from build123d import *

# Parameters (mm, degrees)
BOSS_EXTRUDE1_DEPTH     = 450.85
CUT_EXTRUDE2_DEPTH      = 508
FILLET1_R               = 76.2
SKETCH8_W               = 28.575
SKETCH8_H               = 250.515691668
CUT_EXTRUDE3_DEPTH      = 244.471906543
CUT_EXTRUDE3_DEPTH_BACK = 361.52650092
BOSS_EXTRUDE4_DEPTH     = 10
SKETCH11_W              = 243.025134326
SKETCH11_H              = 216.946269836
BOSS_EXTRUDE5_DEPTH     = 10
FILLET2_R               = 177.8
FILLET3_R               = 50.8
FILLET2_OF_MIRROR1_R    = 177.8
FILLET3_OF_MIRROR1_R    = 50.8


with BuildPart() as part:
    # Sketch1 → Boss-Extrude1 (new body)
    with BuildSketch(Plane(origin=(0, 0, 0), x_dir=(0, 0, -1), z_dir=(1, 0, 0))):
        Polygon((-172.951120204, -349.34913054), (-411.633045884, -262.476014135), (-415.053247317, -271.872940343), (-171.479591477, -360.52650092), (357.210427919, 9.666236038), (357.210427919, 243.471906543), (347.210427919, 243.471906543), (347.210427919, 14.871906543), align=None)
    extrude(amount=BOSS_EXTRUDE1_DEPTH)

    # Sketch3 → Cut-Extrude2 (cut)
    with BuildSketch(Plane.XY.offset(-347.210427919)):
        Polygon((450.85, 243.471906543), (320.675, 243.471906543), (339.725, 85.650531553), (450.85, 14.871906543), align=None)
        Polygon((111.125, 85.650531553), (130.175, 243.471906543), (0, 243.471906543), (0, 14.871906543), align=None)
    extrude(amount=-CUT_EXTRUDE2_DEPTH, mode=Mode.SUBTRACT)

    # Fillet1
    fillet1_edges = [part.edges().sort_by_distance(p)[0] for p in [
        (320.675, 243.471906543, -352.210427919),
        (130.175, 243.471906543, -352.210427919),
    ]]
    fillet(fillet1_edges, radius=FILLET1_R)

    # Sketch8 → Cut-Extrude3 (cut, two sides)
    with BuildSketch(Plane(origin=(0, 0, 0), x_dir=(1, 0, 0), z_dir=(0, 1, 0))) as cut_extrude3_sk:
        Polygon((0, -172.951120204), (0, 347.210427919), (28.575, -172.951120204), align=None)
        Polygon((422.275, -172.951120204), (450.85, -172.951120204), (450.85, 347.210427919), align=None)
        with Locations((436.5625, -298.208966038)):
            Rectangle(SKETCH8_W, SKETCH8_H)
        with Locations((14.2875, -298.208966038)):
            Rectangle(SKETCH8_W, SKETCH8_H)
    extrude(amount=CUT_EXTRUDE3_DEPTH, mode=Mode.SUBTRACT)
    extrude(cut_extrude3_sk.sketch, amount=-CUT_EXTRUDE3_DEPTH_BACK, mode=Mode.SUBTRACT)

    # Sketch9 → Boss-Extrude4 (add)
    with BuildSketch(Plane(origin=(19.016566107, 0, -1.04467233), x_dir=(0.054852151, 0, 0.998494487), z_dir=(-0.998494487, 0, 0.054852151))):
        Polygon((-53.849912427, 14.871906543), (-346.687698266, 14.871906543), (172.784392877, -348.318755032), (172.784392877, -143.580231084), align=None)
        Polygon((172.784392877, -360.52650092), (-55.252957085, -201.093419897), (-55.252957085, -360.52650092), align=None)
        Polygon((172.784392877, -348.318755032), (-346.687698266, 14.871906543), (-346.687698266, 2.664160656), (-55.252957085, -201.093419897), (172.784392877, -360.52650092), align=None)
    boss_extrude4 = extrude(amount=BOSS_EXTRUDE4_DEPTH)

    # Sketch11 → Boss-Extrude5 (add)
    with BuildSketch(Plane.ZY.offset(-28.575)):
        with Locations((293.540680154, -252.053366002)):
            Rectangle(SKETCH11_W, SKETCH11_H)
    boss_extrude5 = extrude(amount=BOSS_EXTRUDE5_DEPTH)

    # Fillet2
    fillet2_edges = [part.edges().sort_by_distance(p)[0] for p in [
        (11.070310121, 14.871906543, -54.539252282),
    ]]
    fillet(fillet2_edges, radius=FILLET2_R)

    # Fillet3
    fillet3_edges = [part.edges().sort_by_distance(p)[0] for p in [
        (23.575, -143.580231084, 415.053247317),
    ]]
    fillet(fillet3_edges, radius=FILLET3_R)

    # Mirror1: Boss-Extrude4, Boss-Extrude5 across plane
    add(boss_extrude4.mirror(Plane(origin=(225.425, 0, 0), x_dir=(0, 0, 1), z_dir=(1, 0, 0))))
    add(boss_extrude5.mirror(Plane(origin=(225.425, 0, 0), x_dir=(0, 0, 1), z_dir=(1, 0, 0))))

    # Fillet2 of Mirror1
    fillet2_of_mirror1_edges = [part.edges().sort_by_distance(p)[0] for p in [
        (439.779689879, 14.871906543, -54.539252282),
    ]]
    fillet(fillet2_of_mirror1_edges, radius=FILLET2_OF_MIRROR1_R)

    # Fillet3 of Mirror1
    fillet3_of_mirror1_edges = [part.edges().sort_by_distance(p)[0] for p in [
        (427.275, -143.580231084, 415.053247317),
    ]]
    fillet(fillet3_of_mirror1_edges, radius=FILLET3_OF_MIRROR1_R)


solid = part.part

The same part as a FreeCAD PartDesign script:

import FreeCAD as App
import Part
import Sketcher
Q = App.Units.Quantity


def edges_at(feature, points):
    """Names of the edges that pass closest to the given points."""
    edges = feature.Shape.Edges
    near = lambda p: min(range(len(edges)), key=lambda i: edges[i].distToShape(Part.Vertex(*p))[0])
    return sorted({f"Edge{near(p) + 1}" for p in points})

doc = App.newDocument("Part")
body = doc.addObject("PartDesign::Body", "Body")

# Sketch on YZ plane
sketch1 = body.newObject("Sketcher::SketchObject", "Sketch")
sketch1.AttachmentSupport = (doc.getObject("YZ_Plane"), [""])
sketch1.MapMode = "FlatFace"
sketch1.addGeometry([
    Part.LineSegment(App.Vector(-349, 173, 0), App.Vector(-262, 412, 0)),  # 0
    Part.LineSegment(App.Vector(-262, 412, 0), App.Vector(-272, 415, 0)),  # 1
    Part.LineSegment(App.Vector(-272, 415, 0), App.Vector(-361, 171, 0)),  # 2
    Part.LineSegment(App.Vector(-361, 171, 0), App.Vector(10, -357, 0)),  # 3
    Part.LineSegment(App.Vector(10, -357, 0), App.Vector(243, -357, 0)),  # 4
    Part.LineSegment(App.Vector(243, -357, 0), App.Vector(243, -347, 0)),  # 5
    Part.LineSegment(App.Vector(243, -347, 0), App.Vector(15, -347, 0)),  # 6
    Part.LineSegment(App.Vector(15, -347, 0), App.Vector(-349, 173, 0)),  # 7
], False)
sketch1.addConstraint([
    Sketcher.Constraint("Coincident", 0, 2, 1, 1),
    Sketcher.Constraint("Coincident", 1, 2, 2, 1),
    Sketcher.Constraint("Coincident", 2, 2, 3, 1),
    Sketcher.Constraint("Coincident", 3, 2, 4, 1),
    Sketcher.Constraint("Coincident", 4, 2, 5, 1),
    Sketcher.Constraint("Coincident", 5, 2, 6, 1),
    Sketcher.Constraint("Coincident", 6, 2, 7, 1),
    Sketcher.Constraint("Coincident", 7, 2, 0, 1),
    Sketcher.Constraint("Horizontal", 4),
    Sketcher.Constraint("Vertical", 5),
    Sketcher.Constraint("Horizontal", 6),
    Sketcher.Constraint("Perpendicular", 0, 1),
    Sketcher.Constraint("Perpendicular", 1, 2),
    Sketcher.Constraint("Parallel", 3, 7),
    Sketcher.Constraint("DistanceX", 6, 2, 6, 1, Q("9 in")),
    Sketcher.Constraint("Distance", 0, Q("10 in")),
    Sketcher.Constraint("Distance", 7, Q("25 in")),
    Sketcher.Constraint("Angle", 0, Q("70 deg")),
    Sketcher.Constraint("Angle", 3, Q("-55 deg")),
    Sketcher.Constraint("DistanceY", 5, 1, 5, 2, Q("10 mm")),
    Sketcher.Constraint("Distance", 1, Q("10 mm")),
    Sketcher.Constraint("DistanceX", 4, 1, 4, 2, Q("233.805671 mm")),
    Sketcher.Constraint("DistanceX", 2, 2, -1, 1, Q("360.526501 mm")),
    Sketcher.Constraint("DistanceY", -1, 1, 2, 2, Q("171.479591 mm")),
])
pad1 = body.newObject("PartDesign::Pad", "Pad")
pad1.Profile = sketch1
pad1.Length = Q("17.75 in")

# Sketch on XY plane
sketch2 = body.newObject("Sketcher::SketchObject", "Sketch001")
sketch2.AttachmentSupport = (doc.getObject("XY_Plane"), [""])
sketch2.MapMode = "FlatFace"
sketch2.AttachmentOffset = App.Placement(App.Vector(0, 0, -347.210428), App.Rotation())
sketch2.addGeometry([
    Part.LineSegment(App.Vector(451, 243, 0), App.Vector(321, 243, 0)),  # 0
    Part.LineSegment(App.Vector(321, 243, 0), App.Vector(340, 86, 0)),  # 1
    Part.LineSegment(App.Vector(340, 86, 0), App.Vector(451, 15, 0)),  # 2
    Part.LineSegment(App.Vector(451, 15, 0), App.Vector(451, 243, 0)),  # 3
    Part.LineSegment(App.Vector(111, 86, 0), App.Vector(130, 243, 0)),  # 4
    Part.LineSegment(App.Vector(130, 243, 0), App.Vector(0, 243, 0)),  # 5
    Part.LineSegment(App.Vector(0, 243, 0), App.Vector(0, 15, 0)),  # 6
    Part.LineSegment(App.Vector(0, 15, 0), App.Vector(111, 86, 0)),  # 7
], False)
sketch2.addConstraint([
    Sketcher.Constraint("Coincident", 0, 2, 1, 1),
    Sketcher.Constraint("Coincident", 1, 2, 2, 1),
    Sketcher.Constraint("Coincident", 2, 2, 3, 1),
    Sketcher.Constraint("Coincident", 3, 2, 0, 1),
    Sketcher.Constraint("Coincident", 4, 2, 5, 1),
    Sketcher.Constraint("Coincident", 5, 2, 6, 1),
    Sketcher.Constraint("Coincident", 6, 2, 7, 1),
    Sketcher.Constraint("Coincident", 7, 2, 4, 1),
    Sketcher.Constraint("Horizontal", 0),
    Sketcher.Constraint("Vertical", 3),
    Sketcher.Constraint("Horizontal", 5),
    Sketcher.Constraint("Vertical", 6),
    Sketcher.Constraint("PointOnObject", 5, 2, -2),
    Sketcher.Constraint("Horizontal", 3, 2, 4, 2),
    Sketcher.Constraint("Horizontal", 2, 2, 6, 2),
    Sketcher.Constraint("Horizontal", 1, 2, 7, 2),
    Sketcher.Constraint("Equal", 0, 5),
    Sketcher.Constraint("Equal", 1, 4),
    Sketcher.Constraint("DistanceY", 3, 1, 3, 2, Q("9 in")),
    Sketcher.Constraint("DistanceX", 7, 2, 1, 2, Q("9 in")),
    Sketcher.Constraint("DistanceX", 4, 2, 0, 2, Q("7.5 in")),
    Sketcher.Constraint("DistanceX", 0, 2, 0, 1, Q("5.125 in")),
    Sketcher.Constraint("DistanceY", -1, 1, 1, 2, Q("85.650532 mm")),
    Sketcher.Constraint("Distance", 1, Q("158.966943 mm")),
])
pocket1 = body.newObject("PartDesign::Pocket", "Pocket")
pocket1.Profile = sketch2
pocket1.Length = Q("20 in")
doc.recompute()

fillet = body.newObject("PartDesign::Fillet", "Fillet")
fillet.Base = (pocket1, edges_at(pocket1, [(320.675, 243.472, -352.21), (130.175, 243.472, -352.21)]))
fillet.Radius = Q("3 in")

# Sketch on XZ plane
sketch3 = body.newObject("Sketcher::SketchObject", "Sketch002")
sketch3.AttachmentSupport = (doc.getObject("XZ_Plane"), [""])
sketch3.MapMode = "FlatFace"
sketch3.addGeometry([
    Part.LineSegment(App.Vector(0, -347, 0), App.Vector(0, 423, 0)),  # 0
    Part.LineSegment(App.Vector(0, 423, 0), App.Vector(29, 423, 0)),  # 1
    Part.LineSegment(App.Vector(29, 423, 0), App.Vector(29, 173, 0)),  # 2
    Part.LineSegment(App.Vector(29, 173, 0), App.Vector(0, -347, 0)),  # 3
    Part.LineSegment(App.Vector(451, -347, 0), App.Vector(422, 173, 0)),  # 4
    Part.LineSegment(App.Vector(422, 173, 0), App.Vector(422, 423, 0)),  # 5
    Part.LineSegment(App.Vector(422, 423, 0), App.Vector(451, 423, 0)),  # 6
    Part.LineSegment(App.Vector(451, 423, 0), App.Vector(451, -347, 0)),  # 7
], False)
sketch3.addConstraint([
    Sketcher.Constraint("Coincident", 0, 2, 1, 1),
    Sketcher.Constraint("Coincident", 1, 2, 2, 1),
    Sketcher.Constraint("Coincident", 2, 2, 3, 1),
    Sketcher.Constraint("Coincident", 3, 2, 0, 1),
    Sketcher.Constraint("Coincident", 4, 2, 5, 1),
    Sketcher.Constraint("Coincident", 5, 2, 6, 1),
    Sketcher.Constraint("Coincident", 6, 2, 7, 1),
    Sketcher.Constraint("Coincident", 7, 2, 4, 1),
    Sketcher.Constraint("Vertical", 0),
    Sketcher.Constraint("Horizontal", 1),
    Sketcher.Constraint("Vertical", 2),
    Sketcher.Constraint("Vertical", 5),
    Sketcher.Constraint("Horizontal", 6),
    Sketcher.Constraint("Vertical", 7),
    Sketcher.Constraint("PointOnObject", 0, 2, -2),
    Sketcher.Constraint("Horizontal", 2, 2, 4, 2),
    Sketcher.Constraint("Horizontal", 1, 2, 5, 2),
    Sketcher.Constraint("Horizontal", 3, 2, 7, 2),
    Sketcher.Constraint("Equal", 1, 6),
    Sketcher.Constraint("DistanceX", 2, 2, 4, 2, Q("15.5 in")),
    Sketcher.Constraint("DistanceX", 1, 1, 1, 2, Q("1.125 in")),
    Sketcher.Constraint("DistanceY", 0, 1, 0, 2, Q("770.67724 mm")),
    Sketcher.Constraint("DistanceY", 2, 2, 2, 1, Q("250.515692 mm")),
    Sketcher.Constraint("DistanceY", -1, 1, 0, 2, Q("423.466812 mm")),
])
pocket2 = body.newObject("PartDesign::Pocket", "Pocket001")
pocket2.Profile = sketch3
pocket2.Type = "ThroughAll"
pocket2.Midplane = True

# Sketch on an angled plane
sketch4 = body.newObject("Sketcher::SketchObject", "Sketch003")
sketch4.Placement = App.Placement(App.Vector(19.016566, 0, -1.044672), App.Rotation(App.Vector(0.054852151, 0, 0.998494487), App.Vector(0, 0.999999999, 0), App.Vector(-0.998494487, 0, 0.054852151), "ZXY"))
sketch4.addGeometry([
    Part.LineSegment(App.Vector(-54, 15, 0), App.Vector(-347, 15, 0)),  # 0
    Part.LineSegment(App.Vector(-347, 15, 0), App.Vector(-347, 3, 0)),  # 1
    Part.LineSegment(App.Vector(-347, 3, 0), App.Vector(-55, -201, 0)),  # 2
    Part.LineSegment(App.Vector(-55, -201, 0), App.Vector(-55, -361, 0)),  # 3
    Part.LineSegment(App.Vector(-55, -361, 0), App.Vector(173, -361, 0)),  # 4
    Part.LineSegment(App.Vector(173, -361, 0), App.Vector(173, -144, 0)),  # 5
    Part.LineSegment(App.Vector(173, -144, 0), App.Vector(-54, 15, 0)),  # 6
], False)
sketch4.addConstraint([
    Sketcher.Constraint("Coincident", 0, 2, 1, 1),
    Sketcher.Constraint("Coincident", 1, 2, 2, 1),
    Sketcher.Constraint("Coincident", 2, 2, 3, 1),
    Sketcher.Constraint("Coincident", 3, 2, 4, 1),
    Sketcher.Constraint("Coincident", 4, 2, 5, 1),
    Sketcher.Constraint("Coincident", 5, 2, 6, 1),
    Sketcher.Constraint("Coincident", 6, 2, 0, 1),
    Sketcher.Constraint("Horizontal", 0),
    Sketcher.Constraint("Vertical", 1),
    Sketcher.Constraint("Vertical", 3),
    Sketcher.Constraint("Horizontal", 4),
    Sketcher.Constraint("Vertical", 5),
    Sketcher.Constraint("Parallel", 2, 6),
    Sketcher.Constraint("Distance", 2, Q("14 in")),
    Sketcher.Constraint("DistanceX", 4, 1, 4, 2, Q("228.03735 mm")),
    Sketcher.Constraint("DistanceY", 3, 2, 3, 1, Q("159.433081 mm")),
    Sketcher.Constraint("DistanceY", 5, 1, 5, 2, Q("216.946269 mm")),
    Sketcher.Constraint("DistanceY", 3, 2, -1, 1, Q("360.5265 mm")),
    Sketcher.Constraint("DistanceX", 0, 2, 0, 1, Q("292.837786 mm")),
    Sketcher.Constraint("DistanceY", 1, 2, 1, 1, Q("12.207746 mm")),
    Sketcher.Constraint("DistanceX", 0, 2, -1, 1, Q("346.687698 mm")),
])
pad2 = body.newObject("PartDesign::Pad", "Pad001")
pad2.Profile = sketch4
pad2.Length = 10

# Sketch on YZ plane
sketch5 = body.newObject("Sketcher::SketchObject", "Sketch004")
sketch5.AttachmentSupport = (doc.getObject("YZ_Plane"), [""])
sketch5.MapMode = "FlatFace"
sketch5.AttachmentOffset = App.Placement(App.Vector(0, 0, 1.125 * 25.4), App.Rotation())
sketch5.addGeometry([
    Part.LineSegment(App.Vector(-144, 172, 0), App.Vector(-361, 172, 0)),
    Part.LineSegment(App.Vector(-361, 172, 0), App.Vector(-361, 415, 0)),
    Part.LineSegment(App.Vector(-361, 415, 0), App.Vector(-144, 415, 0)),
    Part.LineSegment(App.Vector(-144, 415, 0), App.Vector(-144, 172, 0)),
], False)
sketch5.addConstraint([
    Sketcher.Constraint("Coincident", 0, 2, 1, 1),
    Sketcher.Constraint("Coincident", 1, 2, 2, 1),
    Sketcher.Constraint("Coincident", 2, 2, 3, 1),
    Sketcher.Constraint("Coincident", 3, 2, 0, 1),
    Sketcher.Constraint("Horizontal", 0),
    Sketcher.Constraint("Vertical", 1),
    Sketcher.Constraint("Horizontal", 2),
    Sketcher.Constraint("Vertical", 3),
    Sketcher.Constraint("DistanceX", 0, 2, 0, 1, Q("216.94627 mm")),
    Sketcher.Constraint("DistanceX", 0, 2, -1, 1, Q("360.526501 mm")),
    Sketcher.Constraint("DistanceY", 1, 1, 1, 2, Q("243.025134 mm")),
    Sketcher.Constraint("DistanceY", -1, 1, 0, 2, Q("172.028113 mm")),
])
pad3 = body.newObject("PartDesign::Pad", "Pad002")
pad3.Profile = sketch5
pad3.Length = 10
pad3.Reversed = True
doc.recompute()

fillet2 = body.newObject("PartDesign::Fillet", "Fillet001")
fillet2.Base = (pad3, edges_at(pad3, [(11.07, 14.872, -54.539)]))
fillet2.Radius = Q("7 in")
doc.recompute()

fillet3 = body.newObject("PartDesign::Fillet", "Fillet002")
fillet3.Base = (fillet2, edges_at(fillet2, [(23.575, -143.58, 415.053)]))
fillet3.Radius = Q("2 in")
doc.recompute()

datumplane = body.newObject("PartDesign::Plane", "DatumPlane")
datumplane.AttachmentSupport = (doc.getObject("YZ_Plane"), [""])
datumplane.MapMode = "FlatFace"
datumplane.AttachmentOffset = App.Placement(App.Vector(0, 0, 8.875 * 25.4), App.Rotation())
mirrored = body.newObject("PartDesign::Mirrored", "Mirrored")
mirrored.Originals = [pad2, pad3]
mirrored.MirrorPlane = (datumplane, [""])
body.Tip = mirrored
doc.recompute()

fillet4 = body.newObject("PartDesign::Fillet", "Fillet003")
fillet4.Base = (mirrored, edges_at(mirrored, [(439.78, 14.872, -54.539)]))
fillet4.Radius = Q("7 in")
doc.recompute()

fillet5 = body.newObject("PartDesign::Fillet", "Fillet004")
fillet5.Base = (fillet4, edges_at(fillet4, [(427.275, -143.58, 415.053)]))
fillet5.Radius = Q("2 in")

doc.recompute()
